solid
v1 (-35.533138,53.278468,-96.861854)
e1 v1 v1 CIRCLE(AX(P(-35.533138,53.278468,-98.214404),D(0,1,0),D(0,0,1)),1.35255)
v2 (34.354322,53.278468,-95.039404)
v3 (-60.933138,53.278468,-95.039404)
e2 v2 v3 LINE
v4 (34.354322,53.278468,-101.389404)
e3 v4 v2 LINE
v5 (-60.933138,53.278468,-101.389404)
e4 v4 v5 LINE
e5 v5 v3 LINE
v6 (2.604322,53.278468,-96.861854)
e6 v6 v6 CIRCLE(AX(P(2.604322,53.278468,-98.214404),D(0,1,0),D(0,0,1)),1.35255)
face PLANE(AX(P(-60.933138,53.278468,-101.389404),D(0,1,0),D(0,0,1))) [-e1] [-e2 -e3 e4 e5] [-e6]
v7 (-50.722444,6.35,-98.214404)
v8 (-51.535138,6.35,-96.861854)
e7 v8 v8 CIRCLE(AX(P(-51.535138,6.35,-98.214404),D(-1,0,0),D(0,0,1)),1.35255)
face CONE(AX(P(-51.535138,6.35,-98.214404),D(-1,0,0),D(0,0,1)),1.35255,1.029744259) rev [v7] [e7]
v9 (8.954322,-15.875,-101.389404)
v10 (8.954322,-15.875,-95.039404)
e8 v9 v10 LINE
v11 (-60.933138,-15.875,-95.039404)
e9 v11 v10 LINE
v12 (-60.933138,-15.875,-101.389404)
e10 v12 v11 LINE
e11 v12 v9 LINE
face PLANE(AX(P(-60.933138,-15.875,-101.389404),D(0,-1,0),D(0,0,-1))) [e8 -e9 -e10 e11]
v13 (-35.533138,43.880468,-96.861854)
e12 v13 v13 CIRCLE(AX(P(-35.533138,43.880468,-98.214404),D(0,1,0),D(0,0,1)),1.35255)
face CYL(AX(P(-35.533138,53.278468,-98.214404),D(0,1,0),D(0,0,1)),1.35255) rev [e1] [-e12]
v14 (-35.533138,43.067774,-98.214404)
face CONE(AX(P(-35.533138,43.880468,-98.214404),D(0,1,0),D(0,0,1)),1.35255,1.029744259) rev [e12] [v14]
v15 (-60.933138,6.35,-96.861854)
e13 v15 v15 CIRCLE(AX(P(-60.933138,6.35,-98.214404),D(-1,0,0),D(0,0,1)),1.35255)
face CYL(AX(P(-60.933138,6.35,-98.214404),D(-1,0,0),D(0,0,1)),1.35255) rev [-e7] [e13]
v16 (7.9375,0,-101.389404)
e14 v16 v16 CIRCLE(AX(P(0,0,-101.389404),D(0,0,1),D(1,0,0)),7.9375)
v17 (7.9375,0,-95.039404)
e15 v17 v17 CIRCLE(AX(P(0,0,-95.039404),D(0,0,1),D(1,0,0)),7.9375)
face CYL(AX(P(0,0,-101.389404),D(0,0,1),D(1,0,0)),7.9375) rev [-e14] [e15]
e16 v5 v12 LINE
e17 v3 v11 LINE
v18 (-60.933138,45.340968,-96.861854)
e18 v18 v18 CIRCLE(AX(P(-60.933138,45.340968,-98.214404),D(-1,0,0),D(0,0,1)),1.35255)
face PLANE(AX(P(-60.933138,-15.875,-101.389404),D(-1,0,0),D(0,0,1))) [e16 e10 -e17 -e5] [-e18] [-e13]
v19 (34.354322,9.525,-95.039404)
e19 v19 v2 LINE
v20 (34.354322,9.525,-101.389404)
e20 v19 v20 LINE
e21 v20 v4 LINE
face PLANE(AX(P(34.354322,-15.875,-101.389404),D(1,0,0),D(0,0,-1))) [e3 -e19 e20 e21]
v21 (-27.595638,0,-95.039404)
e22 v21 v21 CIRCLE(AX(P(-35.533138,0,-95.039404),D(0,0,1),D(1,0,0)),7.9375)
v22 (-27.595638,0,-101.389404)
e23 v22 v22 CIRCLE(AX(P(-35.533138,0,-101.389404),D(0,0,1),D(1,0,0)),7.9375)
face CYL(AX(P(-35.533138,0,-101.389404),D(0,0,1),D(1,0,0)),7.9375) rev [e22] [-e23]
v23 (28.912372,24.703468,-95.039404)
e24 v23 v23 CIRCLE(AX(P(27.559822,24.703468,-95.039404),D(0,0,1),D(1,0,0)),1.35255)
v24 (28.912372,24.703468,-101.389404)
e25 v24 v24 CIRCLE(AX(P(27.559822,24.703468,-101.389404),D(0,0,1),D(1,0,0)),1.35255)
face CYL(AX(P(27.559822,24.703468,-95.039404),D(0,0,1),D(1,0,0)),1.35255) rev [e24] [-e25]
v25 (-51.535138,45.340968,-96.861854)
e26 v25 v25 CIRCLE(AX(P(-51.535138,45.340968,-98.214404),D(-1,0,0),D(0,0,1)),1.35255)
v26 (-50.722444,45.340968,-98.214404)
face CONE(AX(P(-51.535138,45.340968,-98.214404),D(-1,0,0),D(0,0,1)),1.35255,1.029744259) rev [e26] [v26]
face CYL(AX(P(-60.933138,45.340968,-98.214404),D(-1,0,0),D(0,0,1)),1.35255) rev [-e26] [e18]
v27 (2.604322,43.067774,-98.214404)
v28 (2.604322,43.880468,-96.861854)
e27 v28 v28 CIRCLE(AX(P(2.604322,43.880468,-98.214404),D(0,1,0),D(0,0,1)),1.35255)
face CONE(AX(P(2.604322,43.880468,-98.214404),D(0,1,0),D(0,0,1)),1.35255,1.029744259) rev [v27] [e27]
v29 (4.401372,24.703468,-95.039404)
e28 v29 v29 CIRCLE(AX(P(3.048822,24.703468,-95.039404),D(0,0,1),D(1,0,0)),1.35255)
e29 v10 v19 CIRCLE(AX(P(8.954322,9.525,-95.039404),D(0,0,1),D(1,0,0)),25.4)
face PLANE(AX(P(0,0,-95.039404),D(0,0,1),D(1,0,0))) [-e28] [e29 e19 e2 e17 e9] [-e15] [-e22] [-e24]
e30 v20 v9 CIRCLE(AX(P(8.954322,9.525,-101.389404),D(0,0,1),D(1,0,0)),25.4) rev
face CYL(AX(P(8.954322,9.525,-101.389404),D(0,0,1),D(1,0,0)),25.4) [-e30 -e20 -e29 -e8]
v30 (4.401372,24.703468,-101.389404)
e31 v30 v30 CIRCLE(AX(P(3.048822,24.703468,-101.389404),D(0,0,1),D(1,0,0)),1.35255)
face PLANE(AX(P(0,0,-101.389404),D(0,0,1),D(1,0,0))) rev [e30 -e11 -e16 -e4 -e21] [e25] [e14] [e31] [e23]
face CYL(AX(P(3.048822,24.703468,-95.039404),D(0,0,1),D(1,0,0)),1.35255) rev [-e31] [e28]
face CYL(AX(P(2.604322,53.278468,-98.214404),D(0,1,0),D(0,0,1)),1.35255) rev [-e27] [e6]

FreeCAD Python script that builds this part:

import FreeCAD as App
import Part
import Sketcher

V = App.Vector
Q = App.Units.Quantity


def edges_at(feature, points):
    """Names of the edges that pass closest to the given points."""
    edges = feature.Shape.Edges
    near = lambda p: min(range(len(edges)), key=lambda i: edges[i].distToShape(Part.Vertex(*p))[0])
    return sorted({f"Edge{near(p) + 1}" for p in points})


def add_polygon(sketch, points):
    """Adds a closed chain of lines whose ends are joined by coincident constraints."""
    first, n = sketch.GeometryCount, len(points)
    for a, b in zip(points, points[1:] + points[:1]):
        sketch.addGeometry(Part.LineSegment(App.Vector(*a, 0), App.Vector(*b, 0)), False)
    for i in range(n):
        sketch.addConstraint(Sketcher.Constraint("Coincident", first + i, 2, first + (i + 1) % n, 1))

doc = App.newDocument("Part")
body = doc.addObject("PartDesign::Body", "Body")

sketch1 = doc.addObject("Sketcher::SketchObject", "Sketch")
body.addObject(sketch1)
sketch1.AttachmentSupport = (doc.XY_Plane, [""])
sketch1.MapMode = "FlatFace"
sketch1.AttachmentOffset = App.Placement(V(0, 0, -95.039404), App.Rotation())
add_polygon(sketch1, [(-60.933138, 53.278468), (-60.933138, -15.875), (34.354322, -15.875), (34.354322, 53.278468)])
sketch1.addGeometry(Part.Circle(V(-35.533138, 0, 0), V(0, 0, 1), 7.9375), False)
sketch1.addGeometry(Part.Circle(V(0, 0, 0), V(0, 0, 1), 7.9375), False)
sketch1.addConstraint(Sketcher.Constraint("Vertical", 0))
sketch1.addConstraint(Sketcher.Constraint("Horizontal", 1))
sketch1.addConstraint(Sketcher.Constraint("Vertical", 2))
sketch1.addConstraint(Sketcher.Constraint("Horizontal", 3))
sketch1.addConstraint(Sketcher.Constraint("Coincident", 5, 3, -1, 1))
sketch1.addConstraint(Sketcher.Constraint("Equal", 4, 5))
sketch1.addConstraint(Sketcher.Constraint("PointOnObject", 4, 3, -1))
sketch1.addConstraint(Sketcher.Constraint("Diameter", 4, Q("0.625 in")))
sketch1.addConstraint(Sketcher.Constraint("DistanceX", 0, 2, 4, 3, Q("1 in")))
sketch1.addConstraint(Sketcher.Constraint("DistanceY", 0, 2, -1, 1, Q("0.625 in")))
sketch1.addConstraint(Sketcher.Constraint("DistanceX", 1, 1, 1, 2, Q("95.28746 mm")))
sketch1.addConstraint(Sketcher.Constraint("DistanceY", 0, 2, 0, 1, Q("69.153468 mm")))
sketch1.addConstraint(Sketcher.Constraint("DistanceX", 4, 3, -1, 1, Q("35.533138 mm")))
pad1 = doc.addObject("PartDesign::Pad", "Pad")
body.addObject(pad1)
pad1.Profile = sketch1
pad1.Length = Q("0.25 in")
pad1.Reversed = True
doc.recompute()

fillet = doc.addObject("PartDesign::Fillet", "Fillet")
body.addObject(fillet)
fillet.Base = (pad1, edges_at(pad1, [(34.354, -15.875, -98.214)]))
fillet.Radius = Q("1 in")

sketch2 = doc.addObject("Sketcher::SketchObject", "Sketch001")
body.addObject(sketch2)
sketch2.AttachmentSupport = (doc.XY_Plane, [""])
sketch2.MapMode = "FlatFace"
sketch2.AttachmentOffset = App.Placement(V(0, 0, -95.039404), App.Rotation())
sketch2.addGeometry(Part.Circle(V(27.559822, 24.703468, 0), V(0, 0, 1), 1.35255), False)
sketch2.addGeometry(Part.Circle(V(3.048822, 24.703468, 0), V(0, 0, 1), 1.35255), False)
sketch2.addConstraint(Sketcher.Constraint("Equal", 0, 1))
sketch2.addConstraint(Sketcher.Constraint("Horizontal", 0, 3, 1, 3))
sketch2.addConstraint(Sketcher.Constraint("Diameter", 0, Q("0.1065 in")))
sketch2.addConstraint(Sketcher.Constraint("DistanceX", 1, 3, 0, 3, Q("0.965 in")))
sketch2.addConstraint(Sketcher.Constraint("DistanceX", -1, 1, 0, 3, Q("27.559822 mm")))
sketch2.addConstraint(Sketcher.Constraint("DistanceY", -1, 1, 0, 3, Q("24.703468 mm")))
doc.recompute()
hole = doc.addObject("PartDesign::Hole", "Hole")
body.addObject(hole)
hole.Profile = sketch2
hole.ThreadType = "None"
hole.Diameter = Q("0.1065 in")
hole.DepthType = "Dimension"
hole.Depth = Q("0.432 in")
hole.DrillPoint = "Angled"
hole.DrillPointAngle = 118

sketch3 = doc.addObject("Sketcher::SketchObject", "Sketch002")
body.addObject(sketch3)
sketch3.AttachmentSupport = (doc.XZ_Plane, [""])
sketch3.MapMode = "FlatFace"
sketch3.AttachmentOffset = App.Placement(V(0, 0, -53.278468), App.Rotation())
sketch3.addGeometry(Part.Circle(V(-35.533138, -98.214404, 0), V(0, 0, 1), 1.35255), False)
sketch3.addGeometry(Part.Circle(V(2.604322, -98.214404, 0), V(0, 0, 1), 1.35255), False)
sketch3.addConstraint(Sketcher.Constraint("Equal", 0, 1))
sketch3.addConstraint(Sketcher.Constraint("Horizontal", 0, 3, 1, 3))
sketch3.addConstraint(Sketcher.Constraint("Diameter", 0, Q("0.1065 in")))
sketch3.addConstraint(Sketcher.Constraint("DistanceX", 0, 3, 1, 3, Q("38.13746 mm")))
sketch3.addConstraint(Sketcher.Constraint("DistanceX", 0, 3, -1, 1, Q("35.533138 mm")))
sketch3.addConstraint(Sketcher.Constraint("DistanceY", 0, 3, -1, 1, Q("98.214404 mm")))
doc.recompute()
hole2 = doc.addObject("PartDesign::Hole", "Hole001")
body.addObject(hole2)
hole2.Profile = sketch3
hole2.ThreadType = "None"
hole2.Diameter = Q("0.1065 in")
hole2.DepthType = "Dimension"
hole2.Depth = Q("0.37 in")
hole2.DrillPoint = "Angled"
hole2.DrillPointAngle = 118
hole2.Reversed = True

sketch4 = doc.addObject("Sketcher::SketchObject", "Sketch003")
body.addObject(sketch4)
sketch4.AttachmentSupport = (doc.YZ_Plane, [""])
sketch4.MapMode = "FlatFace"
sketch4.AttachmentOffset = App.Placement(V(0, 0, -60.933138), App.Rotation())
sketch4.addGeometry(Part.Circle(V(45.340968, -98.214404, 0), V(0, 0, 1), 1.35255), False)
sketch4.addGeometry(Part.Circle(V(6.35, -98.214404, 0), V(0, 0, 1), 1.35255), False)
sketch4.addConstraint(Sketcher.Constraint("Equal", 0, 1))
sketch4.addConstraint(Sketcher.Constraint("Horizontal", 0, 3, 1, 3))
sketch4.addConstraint(Sketcher.Constraint("Diameter", 0, Q("0.1065 in")))
sketch4.addConstraint(Sketcher.Constraint("DistanceX", -1, 1, 1, 3, Q("0.25 in")))
sketch4.addConstraint(Sketcher.Constraint("DistanceX", -1, 1, 0, 3, Q("45.340968 mm")))
sketch4.addConstraint(Sketcher.Constraint("DistanceY", 0, 3, -1, 1, Q("98.214404 mm")))
doc.recompute()
hole3 = doc.addObject("PartDesign::Hole", "Hole002")
body.addObject(hole3)
hole3.Profile = sketch4
hole3.ThreadType = "None"
hole3.Diameter = Q("0.1065 in")
hole3.DepthType = "Dimension"
hole3.Depth = Q("0.37 in")
hole3.DrillPoint = "Angled"
hole3.DrillPointAngle = 118
hole3.Reversed = True

doc.recompute()
